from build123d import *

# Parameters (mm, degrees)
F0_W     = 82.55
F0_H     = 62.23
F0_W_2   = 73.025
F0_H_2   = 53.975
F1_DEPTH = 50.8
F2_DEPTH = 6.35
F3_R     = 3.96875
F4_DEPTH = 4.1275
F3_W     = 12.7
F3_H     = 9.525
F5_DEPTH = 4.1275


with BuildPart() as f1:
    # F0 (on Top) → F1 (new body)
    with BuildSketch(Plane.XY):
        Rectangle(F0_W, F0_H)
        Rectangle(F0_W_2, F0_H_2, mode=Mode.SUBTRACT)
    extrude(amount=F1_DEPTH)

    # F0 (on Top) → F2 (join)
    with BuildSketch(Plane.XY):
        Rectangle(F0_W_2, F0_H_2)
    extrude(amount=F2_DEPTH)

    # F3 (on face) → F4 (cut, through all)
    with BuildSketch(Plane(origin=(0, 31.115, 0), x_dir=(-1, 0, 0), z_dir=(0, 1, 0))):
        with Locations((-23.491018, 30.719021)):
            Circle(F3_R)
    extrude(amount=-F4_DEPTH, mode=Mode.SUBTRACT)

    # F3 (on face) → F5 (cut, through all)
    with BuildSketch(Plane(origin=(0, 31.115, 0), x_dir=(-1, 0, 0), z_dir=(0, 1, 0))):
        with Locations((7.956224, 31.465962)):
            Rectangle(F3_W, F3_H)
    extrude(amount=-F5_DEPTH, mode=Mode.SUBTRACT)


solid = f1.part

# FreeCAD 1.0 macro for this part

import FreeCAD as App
import Part
import Sketcher
from FreeCAD import Vector
Q = App.Units.Quantity


def add_polygon(sketch, points):
    """Adds a closed chain of lines whose ends are joined by coincident constraints."""
    first, n = sketch.GeometryCount, len(points)
    for a, b in zip(points, points[1:] + points[:1]):
        sketch.addGeometry(Part.LineSegment(App.Vector(*a, 0), App.Vector(*b, 0)), False)
    for i in range(n):
        sketch.addConstraint(Sketcher.Constraint("Coincident", first + i, 2, first + (i + 1) % n, 1))

doc = App.newDocument("Part")
body = doc.addObject("PartDesign::Body", "Body")

# Sketch on XY plane
sketch1 = body.newObject("Sketcher::SketchObject", "Sketch")
sketch1.AttachmentSupport = (doc.getObject("XY_Plane"), [""])
sketch1.MapMode = "FlatFace"
add_polygon(sketch1, [(-41, 31), (-41, -31), (41, -31), (41, 31)])  # lines 0-3
add_polygon(sketch1, [(37, -27), (-37, -27), (-37, 27), (37, 27)])  # lines 4-7
sketch1.addConstraint([
    Sketcher.Constraint("Vertical", 0),
    Sketcher.Constraint("Horizontal", 1),
    Sketcher.Constraint("Vertical", 2),
    Sketcher.Constraint("Horizontal", 3),
    Sketcher.Constraint("Horizontal", 4),
    Sketcher.Constraint("Vertical", 5),
    Sketcher.Constraint("Horizontal", 6),
    Sketcher.Constraint("Vertical", 7),
    Sketcher.Constraint("Symmetric", 0, 2, 2, 2, -1, 1),
    Sketcher.Constraint("Symmetric", 4, 2, 6, 2, -1, 1),
    Sketcher.Constraint("DistanceX", 1, 1, 1, 2, Q("3.25 in")),
    Sketcher.Constraint("DistanceY", 0, 2, 0, 1, Q("2.45 in")),
    Sketcher.Constraint("DistanceX", 4, 2, 4, 1, Q("2.875 in")),
    Sketcher.Constraint("DistanceY", 5, 1, 5, 2, Q("2.125 in")),
])
pad1 = body.newObject("PartDesign::Pad", "Pad")
pad1.Profile = sketch1
pad1.Length = Q("2 in")

# Sketch on XY plane
sketch2 = body.newObject("Sketcher::SketchObject", "Sketch001")
sketch2.AttachmentSupport = (doc.getObject("XY_Plane"), [""])
sketch2.MapMode = "FlatFace"
add_polygon(sketch2, [(-37, 27), (-37, -27), (37, -27), (37, 27)])  # lines 0-3
sketch2.addConstraint([
    Sketcher.Constraint("Vertical", 0),
    Sketcher.Constraint("Horizontal", 1),
    Sketcher.Constraint("Vertical", 2),
    Sketcher.Constraint("Horizontal", 3),
    Sketcher.Constraint("Symmetric", 0, 2, 2, 2, -1, 1),
    Sketcher.Constraint("DistanceX", 1, 1, 1, 2, Q("2.875 in")),
    Sketcher.Constraint("DistanceY", 0, 2, 0, 1, Q("2.125 in")),
])
pad2 = body.newObject("PartDesign::Pad", "Pad001")
pad2.Profile = sketch2
pad2.Length = Q("0.25 in")

# Sketch on XZ plane
sketch3 = body.newObject("Sketcher::SketchObject", "Sketch002")
sketch3.AttachmentSupport = (doc.getObject("XZ_Plane"), [""])
sketch3.MapMode = "FlatFace"
sketch3.AttachmentOffset = App.Placement(Vector(0, 0, -1.225 * 25.4), App.Rotation())
sketch3.addGeometry(Part.Circle(Vector(23.5, 30.7, 0), Vector(0, 0, 1), 4), False)
sketch3.addConstraint([
    Sketcher.Constraint("Diameter", 0, Q("0.3125 in")),
    Sketcher.Constraint("DistanceX", -1, 1, 0, 3, 23.491018),
    Sketcher.Constraint("DistanceY", -1, 1, 0, 3, 30.719021),
])
pocket1 = body.newObject("PartDesign::Pocket", "Pocket")
pocket1.Profile = sketch3
pocket1.Length = Q("0.1625 in")
pocket1.Reversed = True

# Sketch on XZ plane
sketch4 = body.newObject("Sketcher::SketchObject", "Sketch003")
sketch4.AttachmentSupport = (doc.getObject("XZ_Plane"), [""])
sketch4.MapMode = "FlatFace"
sketch4.AttachmentOffset = App.Placement(Vector(0, 0, -1.225 * 25.4), App.Rotation())
add_polygon(sketch4, [(-2, 36), (-2, 27), (-14, 27), (-14, 36)])  # lines 0-3
sketch4.addConstraint([
    Sketcher.Constraint("Vertical", 0),
    Sketcher.Constraint("Horizontal", 1),
    Sketcher.Constraint("Vertical", 2),
    Sketcher.Constraint("Horizontal", 3),
    Sketcher.Constraint("DistanceX", 1, 2, 1, 1, Q("0.5 in")),
    Sketcher.Constraint("DistanceY", 0, 2, 0, 1, Q("0.375 in")),
    Sketcher.Constraint("DistanceY", -1, 1, 0, 2, 26.703462),
    Sketcher.Constraint("DistanceX", 0, 2, -1, 1, 1.606224),
])
pocket2 = body.newObject("PartDesign::Pocket", "Pocket001")
pocket2.Profile = sketch4
pocket2.Length = Q("0.1625 in")
pocket2.Reversed = True

doc.recompute()
